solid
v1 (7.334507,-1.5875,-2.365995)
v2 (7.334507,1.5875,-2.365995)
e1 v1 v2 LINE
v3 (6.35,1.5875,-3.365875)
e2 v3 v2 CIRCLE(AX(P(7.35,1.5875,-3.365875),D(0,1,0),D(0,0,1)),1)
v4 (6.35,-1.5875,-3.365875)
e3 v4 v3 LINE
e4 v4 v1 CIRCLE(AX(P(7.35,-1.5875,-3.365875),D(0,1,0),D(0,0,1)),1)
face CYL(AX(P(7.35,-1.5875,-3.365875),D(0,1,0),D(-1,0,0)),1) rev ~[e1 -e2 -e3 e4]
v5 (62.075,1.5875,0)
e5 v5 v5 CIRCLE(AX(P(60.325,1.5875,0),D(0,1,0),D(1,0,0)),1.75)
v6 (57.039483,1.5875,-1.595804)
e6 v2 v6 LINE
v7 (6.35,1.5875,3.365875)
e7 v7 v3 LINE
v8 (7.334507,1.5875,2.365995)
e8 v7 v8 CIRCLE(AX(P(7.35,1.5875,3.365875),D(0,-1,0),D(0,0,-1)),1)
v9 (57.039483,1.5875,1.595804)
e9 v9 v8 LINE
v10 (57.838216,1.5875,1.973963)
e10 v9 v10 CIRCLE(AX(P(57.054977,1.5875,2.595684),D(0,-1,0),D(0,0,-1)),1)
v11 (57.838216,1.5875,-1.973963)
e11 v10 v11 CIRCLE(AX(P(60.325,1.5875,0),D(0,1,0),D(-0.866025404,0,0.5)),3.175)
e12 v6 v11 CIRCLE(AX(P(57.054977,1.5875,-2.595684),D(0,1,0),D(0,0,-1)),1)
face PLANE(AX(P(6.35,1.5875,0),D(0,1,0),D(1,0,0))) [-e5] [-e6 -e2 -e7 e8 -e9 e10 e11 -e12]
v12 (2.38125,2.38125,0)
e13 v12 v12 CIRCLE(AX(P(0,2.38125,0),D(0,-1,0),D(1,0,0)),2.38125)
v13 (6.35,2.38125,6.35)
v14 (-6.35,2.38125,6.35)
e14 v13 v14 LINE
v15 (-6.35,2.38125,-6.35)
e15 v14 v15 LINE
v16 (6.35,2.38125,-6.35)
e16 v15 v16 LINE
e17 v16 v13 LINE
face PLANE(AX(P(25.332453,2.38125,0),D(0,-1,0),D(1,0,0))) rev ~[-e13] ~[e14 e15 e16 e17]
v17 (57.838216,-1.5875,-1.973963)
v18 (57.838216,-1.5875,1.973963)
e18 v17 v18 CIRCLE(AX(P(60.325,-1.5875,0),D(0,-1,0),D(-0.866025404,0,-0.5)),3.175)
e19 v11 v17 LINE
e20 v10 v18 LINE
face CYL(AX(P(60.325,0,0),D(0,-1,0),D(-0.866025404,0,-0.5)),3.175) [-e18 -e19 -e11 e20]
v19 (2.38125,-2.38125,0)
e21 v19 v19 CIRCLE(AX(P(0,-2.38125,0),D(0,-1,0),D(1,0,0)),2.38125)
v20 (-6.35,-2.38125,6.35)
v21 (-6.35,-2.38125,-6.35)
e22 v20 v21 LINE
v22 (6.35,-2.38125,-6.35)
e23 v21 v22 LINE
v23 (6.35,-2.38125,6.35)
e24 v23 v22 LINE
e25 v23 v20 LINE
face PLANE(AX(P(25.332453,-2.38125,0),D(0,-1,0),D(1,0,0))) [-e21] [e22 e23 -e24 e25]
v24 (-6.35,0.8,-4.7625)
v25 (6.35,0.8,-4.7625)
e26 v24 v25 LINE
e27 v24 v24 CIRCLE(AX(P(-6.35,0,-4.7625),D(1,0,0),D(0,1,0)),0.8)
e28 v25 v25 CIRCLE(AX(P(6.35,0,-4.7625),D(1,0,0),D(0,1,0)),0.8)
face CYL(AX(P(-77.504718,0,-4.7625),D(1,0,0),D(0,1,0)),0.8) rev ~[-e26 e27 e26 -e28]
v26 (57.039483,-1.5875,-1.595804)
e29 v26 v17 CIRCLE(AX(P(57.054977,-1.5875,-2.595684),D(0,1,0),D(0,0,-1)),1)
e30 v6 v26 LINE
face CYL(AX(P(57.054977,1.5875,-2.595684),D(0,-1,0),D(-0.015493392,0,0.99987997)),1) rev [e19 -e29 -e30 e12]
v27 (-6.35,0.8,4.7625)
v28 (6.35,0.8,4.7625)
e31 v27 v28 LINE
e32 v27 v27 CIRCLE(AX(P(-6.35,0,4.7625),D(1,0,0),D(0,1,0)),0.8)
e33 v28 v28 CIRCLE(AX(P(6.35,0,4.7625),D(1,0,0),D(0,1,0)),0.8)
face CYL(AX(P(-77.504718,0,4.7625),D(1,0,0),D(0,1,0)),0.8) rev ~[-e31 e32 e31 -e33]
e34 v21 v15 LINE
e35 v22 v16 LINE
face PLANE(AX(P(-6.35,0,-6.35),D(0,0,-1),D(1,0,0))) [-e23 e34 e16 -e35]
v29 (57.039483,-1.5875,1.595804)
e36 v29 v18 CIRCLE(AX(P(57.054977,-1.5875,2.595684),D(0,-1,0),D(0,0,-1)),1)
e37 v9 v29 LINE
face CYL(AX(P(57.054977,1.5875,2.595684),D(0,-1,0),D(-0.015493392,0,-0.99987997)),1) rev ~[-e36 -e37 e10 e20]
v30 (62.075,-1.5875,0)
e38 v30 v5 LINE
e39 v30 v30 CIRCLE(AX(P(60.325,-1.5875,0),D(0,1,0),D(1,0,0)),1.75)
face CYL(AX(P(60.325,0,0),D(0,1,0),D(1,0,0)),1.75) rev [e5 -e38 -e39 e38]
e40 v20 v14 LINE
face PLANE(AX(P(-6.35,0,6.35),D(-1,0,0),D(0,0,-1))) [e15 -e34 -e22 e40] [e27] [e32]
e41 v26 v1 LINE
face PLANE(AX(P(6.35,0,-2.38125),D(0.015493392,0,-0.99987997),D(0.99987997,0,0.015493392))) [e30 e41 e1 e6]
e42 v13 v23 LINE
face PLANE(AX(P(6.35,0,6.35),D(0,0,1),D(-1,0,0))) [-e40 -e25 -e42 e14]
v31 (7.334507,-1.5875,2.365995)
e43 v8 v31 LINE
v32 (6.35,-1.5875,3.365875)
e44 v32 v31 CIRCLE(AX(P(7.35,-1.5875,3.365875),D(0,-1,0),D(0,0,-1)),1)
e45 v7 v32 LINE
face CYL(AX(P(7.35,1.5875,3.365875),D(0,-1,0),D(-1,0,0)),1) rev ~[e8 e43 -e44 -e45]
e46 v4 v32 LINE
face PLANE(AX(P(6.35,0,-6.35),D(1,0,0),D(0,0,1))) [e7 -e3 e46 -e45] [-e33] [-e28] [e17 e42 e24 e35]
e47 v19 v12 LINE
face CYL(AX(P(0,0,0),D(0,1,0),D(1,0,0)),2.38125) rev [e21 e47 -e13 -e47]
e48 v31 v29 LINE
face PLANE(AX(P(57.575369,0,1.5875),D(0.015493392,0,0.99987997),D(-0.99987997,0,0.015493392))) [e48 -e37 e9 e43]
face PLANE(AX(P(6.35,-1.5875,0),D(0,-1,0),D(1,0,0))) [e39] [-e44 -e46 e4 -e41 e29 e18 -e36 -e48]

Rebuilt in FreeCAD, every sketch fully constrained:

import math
import FreeCAD as App
import Part
import Sketcher
Q = App.Units.Quantity


def edges_at(feature, points):
    """Names of the edges that pass closest to the given points."""
    edges = feature.Shape.Edges
    near = lambda p: min(range(len(edges)), key=lambda i: edges[i].distToShape(Part.Vertex(*p))[0])
    return sorted({f"Edge{near(p) + 1}" for p in points})


def add_polygon(sketch, points):
    """Adds a closed chain of lines whose ends are joined by coincident constraints."""
    first, n = sketch.GeometryCount, len(points)
    for a, b in zip(points, points[1:] + points[:1]):
        sketch.addGeometry(Part.LineSegment(App.Vector(*a, 0), App.Vector(*b, 0)), False)
    for i in range(n):
        sketch.addConstraint(Sketcher.Constraint("Coincident", first + i, 2, first + (i + 1) % n, 1))

doc = App.newDocument("Part")
params = doc.addObject("Spreadsheet::Sheet", "Params")
for row, (alias, value) in enumerate([
    ("sketch1_diameter", "0.1875 in"),
    ("sketch1_width", "0.5 in"),
    ("sketch1_radius", "0.125 in"),
    ("sketch1_height", "0.15625 in"),
    ("pad1_length", "0.1875 in"),
    ("sketch2_width", "2.25 in"),
    ("sketch2_height", "0.03125 in"),
    ("pocket1_length", "25 mm"),
    ("hole_diameter", "1.6 mm"),
    ("fillet_radius", "1 mm"),
], start=1):
    params.set(f"A{row}", alias)
    params.set(f"B{row}", "=" + value)
    params.setAlias(f"B{row}", alias)

body = doc.addObject("PartDesign::Body", "Body")

sketch1 = doc.addObject("Sketcher::SketchObject", "Sketch")
body.addObject(sketch1)
sketch1.AttachmentSupport = (doc.XZ_Plane, [""])
sketch1.MapMode = "FlatFace"
sketch1.addGeometry([
    Part.LineSegment(App.Vector(6.35, -2.38125, 0), App.Vector(57.575369, -1.5875, 0)),
    Part.ArcOfCircle(Part.Circle(App.Vector(60.325, 0, 0), App.Vector(0, 0, 1), 3.175), math.radians(-150), math.radians(150)),
    Part.LineSegment(App.Vector(57.575369, 1.5875, 0), App.Vector(6.35, 2.38125, 0)),
    Part.LineSegment(App.Vector(6.35, 2.38125, 0), App.Vector(6.35, 6.35, 0)),
    Part.LineSegment(App.Vector(6.35, 6.35, 0), App.Vector(-6.35, 6.35, 0)),
    Part.LineSegment(App.Vector(-6.35, 6.35, 0), App.Vector(-6.35, -6.35, 0)),
    Part.LineSegment(App.Vector(-6.35, -6.35, 0), App.Vector(6.35, -6.35, 0)),
    Part.LineSegment(App.Vector(6.35, -6.35, 0), App.Vector(6.35, -2.38125, 0)),
    Part.Circle(App.Vector(0, 0, 0), App.Vector(0, 0, 1), 2.38125),
    Part.Circle(App.Vector(60.325, 0, 0), App.Vector(0, 0, 1), 1.75),
], False)
sketch1.addConstraint([
    Sketcher.Constraint("Coincident", 0, 2, 1, 1),
    Sketcher.Constraint("Coincident", 1, 2, 2, 1),
    Sketcher.Constraint("Coincident", 2, 2, 3, 1),
    Sketcher.Constraint("Coincident", 3, 2, 4, 1),
    Sketcher.Constraint("Coincident", 4, 2, 5, 1),
    Sketcher.Constraint("Coincident", 5, 2, 6, 1),
    Sketcher.Constraint("Coincident", 6, 2, 7, 1),
    Sketcher.Constraint("Coincident", 7, 2, 0, 1),
    Sketcher.Constraint("Vertical", 3),
    Sketcher.Constraint("Horizontal", 4),
    Sketcher.Constraint("Vertical", 5),
    Sketcher.Constraint("Horizontal", 6),
    Sketcher.Constraint("Vertical", 7),
    Sketcher.Constraint("Coincident", 8, 3, -1, 1),
    Sketcher.Constraint("Coincident", 9, 3, 1, 3),
    Sketcher.Constraint("Symmetric", 3, 2, 5, 2, -1, 1),
    Sketcher.Constraint("Symmetric", 0, 2, 1, 2, -1),
    Sketcher.Constraint("Symmetric", 2, 2, 7, 2, -1),
    Sketcher.Constraint("Equal", 6, 5),
    Sketcher.Constraint("Diameter", 8, Q("0.1875 in")),
    Sketcher.Constraint("DistanceX", 4, 2, 4, 1, Q("0.5 in")),
    Sketcher.Constraint("Radius", 1, Q("0.125 in")),
    Sketcher.Constraint("Diameter", 9, Q("3.5 mm")),
    Sketcher.Constraint("DistanceY", 3, 1, 3, 2, Q("0.15625 in")),
    Sketcher.Constraint("DistanceX", -1, 1, 1, 3, Q("2.375 in")),
    Sketcher.Constraint("DistanceY", 0, 2, -1, 1, Q("0.0625 in")),
])
sketch1.setExpression("Constraints[19]", "Params.sketch1_diameter")
sketch1.setExpression("Constraints[20]", "Params.sketch1_width")
sketch1.setExpression("Constraints[21]", "Params.sketch1_radius")
sketch1.setExpression("Constraints[23]", "Params.sketch1_height")
pad1 = doc.addObject("PartDesign::Pad", "Pad")
body.addObject(pad1)
pad1.Profile = sketch1
pad1.setExpression("Length", "Params.pad1_length")
pad1.Midplane = True

sketch2 = doc.addObject("Sketcher::SketchObject", "Sketch001")
body.addObject(sketch2)
sketch2.AttachmentSupport = (doc.XY_Plane, [""])
sketch2.MapMode = "FlatFace"
add_polygon(sketch2, [(6.35, 2.38125), (6.35, 1.5875), (63.5, 1.5875), (63.5, 2.38125)])
add_polygon(sketch2, [(6.35, -1.5875), (6.35, -2.38125), (63.5, -2.38125), (63.5, -1.5875)])
sketch2.addConstraint([
    Sketcher.Constraint("Vertical", 0),
    Sketcher.Constraint("Horizontal", 1),
    Sketcher.Constraint("Vertical", 2),
    Sketcher.Constraint("Horizontal", 3),
    Sketcher.Constraint("Vertical", 4),
    Sketcher.Constraint("Horizontal", 5),
    Sketcher.Constraint("Vertical", 6),
    Sketcher.Constraint("Horizontal", 7),
    Sketcher.Constraint("Symmetric", 3, 2, 4, 2, -1),
    Sketcher.Constraint("Symmetric", 1, 2, 6, 2, -1),
    Sketcher.Constraint("DistanceX", 1, 1, 1, 2, Q("2.25 in")),
    Sketcher.Constraint("DistanceX", -1, 1, 1, 2, Q("2.5 in")),
    Sketcher.Constraint("DistanceY", 0, 2, 0, 1, Q("0.03125 in")),
    Sketcher.Constraint("DistanceY", -1, 1, 0, 2, Q("0.0625 in")),
])
sketch2.setExpression("Constraints[18]", "Params.sketch2_width")
sketch2.setExpression("Constraints[20]", "Params.sketch2_height")
pocket1 = doc.addObject("PartDesign::Pocket", "Pocket")
body.addObject(pocket1)
pocket1.Profile = sketch2
pocket1.setExpression("Length", "Params.pocket1_length")
pocket1.Midplane = True

sketch3 = doc.addObject("Sketcher::SketchObject", "Sketch002")
body.addObject(sketch3)
sketch3.AttachmentSupport = (doc.YZ_Plane, [""])
sketch3.MapMode = "FlatFace"
sketch3.AttachmentOffset = App.Placement(App.Vector(0, 0, -0.25 * 25.4), App.Rotation())
sketch3.addGeometry([
    Part.Circle(App.Vector(0, 4.7625, 0), App.Vector(0, 0, 1), 0.8),
    Part.Circle(App.Vector(0, -4.7625, 0), App.Vector(0, 0, 1), 0.8),
], False)
sketch3.addConstraint([
    Sketcher.Constraint("Equal", 0, 1),
    Sketcher.Constraint("Symmetric", 0, 3, 1, 3, -1, 1),
    Sketcher.Constraint("PointOnObject", 0, 3, -2),
    Sketcher.Constraint("Diameter", 0, Q("1.6 mm")),
    Sketcher.Constraint("DistanceY", -1, 1, 0, 3, Q("0.1875 in")),
])
doc.recompute()
hole = doc.addObject("PartDesign::Hole", "Hole")
body.addObject(hole)
hole.Profile = sketch3
hole.ThreadType = "None"
hole.setExpression("Diameter", "Params.hole_diameter")
hole.DepthType = "ThroughAll"
hole.Reversed = True
doc.recompute()

fillet = doc.addObject("PartDesign::Fillet", "Fillet")
body.addObject(fillet)
fillet.Base = (hole, edges_at(hole, [
    (6.35, 0, 2.381),
    (6.35, 0, -2.381),
    (57.575, 0, 1.587),
    (57.575, 0, -1.587),
]))
fillet.setExpression("Radius", "Params.fillet_radius")

doc.recompute()
